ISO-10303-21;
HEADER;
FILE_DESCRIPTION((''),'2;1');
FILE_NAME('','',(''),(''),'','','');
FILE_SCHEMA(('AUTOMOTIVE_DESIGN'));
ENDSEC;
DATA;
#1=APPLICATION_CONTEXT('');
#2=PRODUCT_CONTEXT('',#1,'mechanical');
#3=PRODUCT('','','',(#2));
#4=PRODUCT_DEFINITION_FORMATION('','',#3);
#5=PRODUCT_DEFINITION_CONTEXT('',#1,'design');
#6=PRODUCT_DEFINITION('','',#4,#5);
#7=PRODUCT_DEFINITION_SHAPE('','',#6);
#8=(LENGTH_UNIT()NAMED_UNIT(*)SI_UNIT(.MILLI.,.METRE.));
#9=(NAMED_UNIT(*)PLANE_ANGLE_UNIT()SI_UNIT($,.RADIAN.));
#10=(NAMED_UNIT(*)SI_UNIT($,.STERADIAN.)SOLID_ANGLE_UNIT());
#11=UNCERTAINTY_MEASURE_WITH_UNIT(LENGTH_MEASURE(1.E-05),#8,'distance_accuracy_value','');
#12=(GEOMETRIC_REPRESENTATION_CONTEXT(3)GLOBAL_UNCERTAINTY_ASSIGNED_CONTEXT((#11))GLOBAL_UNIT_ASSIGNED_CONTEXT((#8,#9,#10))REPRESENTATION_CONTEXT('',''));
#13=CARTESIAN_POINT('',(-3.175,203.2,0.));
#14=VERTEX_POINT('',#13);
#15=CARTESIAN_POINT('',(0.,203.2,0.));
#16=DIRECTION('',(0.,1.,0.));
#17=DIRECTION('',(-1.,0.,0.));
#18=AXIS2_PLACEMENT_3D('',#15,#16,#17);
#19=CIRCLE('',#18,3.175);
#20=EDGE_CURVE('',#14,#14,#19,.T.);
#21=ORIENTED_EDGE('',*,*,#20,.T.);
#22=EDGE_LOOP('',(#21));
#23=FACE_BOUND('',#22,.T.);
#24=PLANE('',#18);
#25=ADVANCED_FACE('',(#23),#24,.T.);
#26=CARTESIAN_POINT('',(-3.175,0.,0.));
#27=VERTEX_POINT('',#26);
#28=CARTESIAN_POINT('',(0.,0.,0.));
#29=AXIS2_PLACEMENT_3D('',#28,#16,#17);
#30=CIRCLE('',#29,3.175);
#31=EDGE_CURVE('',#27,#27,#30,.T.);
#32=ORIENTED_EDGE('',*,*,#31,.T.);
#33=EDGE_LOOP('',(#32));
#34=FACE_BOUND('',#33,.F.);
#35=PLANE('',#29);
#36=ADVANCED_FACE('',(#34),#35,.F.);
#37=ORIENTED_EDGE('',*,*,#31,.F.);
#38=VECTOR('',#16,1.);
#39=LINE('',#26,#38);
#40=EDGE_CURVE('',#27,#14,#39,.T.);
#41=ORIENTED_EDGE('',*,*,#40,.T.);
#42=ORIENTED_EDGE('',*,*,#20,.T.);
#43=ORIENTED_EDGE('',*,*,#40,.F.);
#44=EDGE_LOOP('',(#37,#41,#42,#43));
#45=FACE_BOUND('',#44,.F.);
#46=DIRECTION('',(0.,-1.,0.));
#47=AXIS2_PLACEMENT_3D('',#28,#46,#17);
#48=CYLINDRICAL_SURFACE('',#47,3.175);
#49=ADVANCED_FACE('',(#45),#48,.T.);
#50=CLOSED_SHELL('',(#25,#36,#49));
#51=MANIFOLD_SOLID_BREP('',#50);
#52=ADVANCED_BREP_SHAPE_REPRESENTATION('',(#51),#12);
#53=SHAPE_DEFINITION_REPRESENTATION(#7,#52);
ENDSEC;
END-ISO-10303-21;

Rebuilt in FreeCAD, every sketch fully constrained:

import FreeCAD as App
import Part
import Sketcher
from FreeCAD import Vector
Q = App.Units.Quantity

doc = App.newDocument("Part")
body = doc.addObject("PartDesign::Body", "Body")

# Sketch on XZ plane
sketch1 = doc.addObject("Sketcher::SketchObject", "Sketch")
body.addObject(sketch1)
sketch1.AttachmentSupport = (doc.XZ_Plane, [""])
sketch1.MapMode = "FlatFace"
sketch1.addGeometry(Part.Circle(Vector(0, 0, 0), Vector(0, 0, 1), 3.2), False)
sketch1.addConstraint([
    Sketcher.Constraint("Coincident", 0, 3, -1, 1),
    Sketcher.Constraint("Diameter", 0, Q("0.25 in")),
])
pad1 = doc.addObject("PartDesign::Pad", "Pad")
body.addObject(pad1)
pad1.Profile = sketch1
pad1.Length = Q("8 in")
pad1.Reversed = True

doc.recompute()
